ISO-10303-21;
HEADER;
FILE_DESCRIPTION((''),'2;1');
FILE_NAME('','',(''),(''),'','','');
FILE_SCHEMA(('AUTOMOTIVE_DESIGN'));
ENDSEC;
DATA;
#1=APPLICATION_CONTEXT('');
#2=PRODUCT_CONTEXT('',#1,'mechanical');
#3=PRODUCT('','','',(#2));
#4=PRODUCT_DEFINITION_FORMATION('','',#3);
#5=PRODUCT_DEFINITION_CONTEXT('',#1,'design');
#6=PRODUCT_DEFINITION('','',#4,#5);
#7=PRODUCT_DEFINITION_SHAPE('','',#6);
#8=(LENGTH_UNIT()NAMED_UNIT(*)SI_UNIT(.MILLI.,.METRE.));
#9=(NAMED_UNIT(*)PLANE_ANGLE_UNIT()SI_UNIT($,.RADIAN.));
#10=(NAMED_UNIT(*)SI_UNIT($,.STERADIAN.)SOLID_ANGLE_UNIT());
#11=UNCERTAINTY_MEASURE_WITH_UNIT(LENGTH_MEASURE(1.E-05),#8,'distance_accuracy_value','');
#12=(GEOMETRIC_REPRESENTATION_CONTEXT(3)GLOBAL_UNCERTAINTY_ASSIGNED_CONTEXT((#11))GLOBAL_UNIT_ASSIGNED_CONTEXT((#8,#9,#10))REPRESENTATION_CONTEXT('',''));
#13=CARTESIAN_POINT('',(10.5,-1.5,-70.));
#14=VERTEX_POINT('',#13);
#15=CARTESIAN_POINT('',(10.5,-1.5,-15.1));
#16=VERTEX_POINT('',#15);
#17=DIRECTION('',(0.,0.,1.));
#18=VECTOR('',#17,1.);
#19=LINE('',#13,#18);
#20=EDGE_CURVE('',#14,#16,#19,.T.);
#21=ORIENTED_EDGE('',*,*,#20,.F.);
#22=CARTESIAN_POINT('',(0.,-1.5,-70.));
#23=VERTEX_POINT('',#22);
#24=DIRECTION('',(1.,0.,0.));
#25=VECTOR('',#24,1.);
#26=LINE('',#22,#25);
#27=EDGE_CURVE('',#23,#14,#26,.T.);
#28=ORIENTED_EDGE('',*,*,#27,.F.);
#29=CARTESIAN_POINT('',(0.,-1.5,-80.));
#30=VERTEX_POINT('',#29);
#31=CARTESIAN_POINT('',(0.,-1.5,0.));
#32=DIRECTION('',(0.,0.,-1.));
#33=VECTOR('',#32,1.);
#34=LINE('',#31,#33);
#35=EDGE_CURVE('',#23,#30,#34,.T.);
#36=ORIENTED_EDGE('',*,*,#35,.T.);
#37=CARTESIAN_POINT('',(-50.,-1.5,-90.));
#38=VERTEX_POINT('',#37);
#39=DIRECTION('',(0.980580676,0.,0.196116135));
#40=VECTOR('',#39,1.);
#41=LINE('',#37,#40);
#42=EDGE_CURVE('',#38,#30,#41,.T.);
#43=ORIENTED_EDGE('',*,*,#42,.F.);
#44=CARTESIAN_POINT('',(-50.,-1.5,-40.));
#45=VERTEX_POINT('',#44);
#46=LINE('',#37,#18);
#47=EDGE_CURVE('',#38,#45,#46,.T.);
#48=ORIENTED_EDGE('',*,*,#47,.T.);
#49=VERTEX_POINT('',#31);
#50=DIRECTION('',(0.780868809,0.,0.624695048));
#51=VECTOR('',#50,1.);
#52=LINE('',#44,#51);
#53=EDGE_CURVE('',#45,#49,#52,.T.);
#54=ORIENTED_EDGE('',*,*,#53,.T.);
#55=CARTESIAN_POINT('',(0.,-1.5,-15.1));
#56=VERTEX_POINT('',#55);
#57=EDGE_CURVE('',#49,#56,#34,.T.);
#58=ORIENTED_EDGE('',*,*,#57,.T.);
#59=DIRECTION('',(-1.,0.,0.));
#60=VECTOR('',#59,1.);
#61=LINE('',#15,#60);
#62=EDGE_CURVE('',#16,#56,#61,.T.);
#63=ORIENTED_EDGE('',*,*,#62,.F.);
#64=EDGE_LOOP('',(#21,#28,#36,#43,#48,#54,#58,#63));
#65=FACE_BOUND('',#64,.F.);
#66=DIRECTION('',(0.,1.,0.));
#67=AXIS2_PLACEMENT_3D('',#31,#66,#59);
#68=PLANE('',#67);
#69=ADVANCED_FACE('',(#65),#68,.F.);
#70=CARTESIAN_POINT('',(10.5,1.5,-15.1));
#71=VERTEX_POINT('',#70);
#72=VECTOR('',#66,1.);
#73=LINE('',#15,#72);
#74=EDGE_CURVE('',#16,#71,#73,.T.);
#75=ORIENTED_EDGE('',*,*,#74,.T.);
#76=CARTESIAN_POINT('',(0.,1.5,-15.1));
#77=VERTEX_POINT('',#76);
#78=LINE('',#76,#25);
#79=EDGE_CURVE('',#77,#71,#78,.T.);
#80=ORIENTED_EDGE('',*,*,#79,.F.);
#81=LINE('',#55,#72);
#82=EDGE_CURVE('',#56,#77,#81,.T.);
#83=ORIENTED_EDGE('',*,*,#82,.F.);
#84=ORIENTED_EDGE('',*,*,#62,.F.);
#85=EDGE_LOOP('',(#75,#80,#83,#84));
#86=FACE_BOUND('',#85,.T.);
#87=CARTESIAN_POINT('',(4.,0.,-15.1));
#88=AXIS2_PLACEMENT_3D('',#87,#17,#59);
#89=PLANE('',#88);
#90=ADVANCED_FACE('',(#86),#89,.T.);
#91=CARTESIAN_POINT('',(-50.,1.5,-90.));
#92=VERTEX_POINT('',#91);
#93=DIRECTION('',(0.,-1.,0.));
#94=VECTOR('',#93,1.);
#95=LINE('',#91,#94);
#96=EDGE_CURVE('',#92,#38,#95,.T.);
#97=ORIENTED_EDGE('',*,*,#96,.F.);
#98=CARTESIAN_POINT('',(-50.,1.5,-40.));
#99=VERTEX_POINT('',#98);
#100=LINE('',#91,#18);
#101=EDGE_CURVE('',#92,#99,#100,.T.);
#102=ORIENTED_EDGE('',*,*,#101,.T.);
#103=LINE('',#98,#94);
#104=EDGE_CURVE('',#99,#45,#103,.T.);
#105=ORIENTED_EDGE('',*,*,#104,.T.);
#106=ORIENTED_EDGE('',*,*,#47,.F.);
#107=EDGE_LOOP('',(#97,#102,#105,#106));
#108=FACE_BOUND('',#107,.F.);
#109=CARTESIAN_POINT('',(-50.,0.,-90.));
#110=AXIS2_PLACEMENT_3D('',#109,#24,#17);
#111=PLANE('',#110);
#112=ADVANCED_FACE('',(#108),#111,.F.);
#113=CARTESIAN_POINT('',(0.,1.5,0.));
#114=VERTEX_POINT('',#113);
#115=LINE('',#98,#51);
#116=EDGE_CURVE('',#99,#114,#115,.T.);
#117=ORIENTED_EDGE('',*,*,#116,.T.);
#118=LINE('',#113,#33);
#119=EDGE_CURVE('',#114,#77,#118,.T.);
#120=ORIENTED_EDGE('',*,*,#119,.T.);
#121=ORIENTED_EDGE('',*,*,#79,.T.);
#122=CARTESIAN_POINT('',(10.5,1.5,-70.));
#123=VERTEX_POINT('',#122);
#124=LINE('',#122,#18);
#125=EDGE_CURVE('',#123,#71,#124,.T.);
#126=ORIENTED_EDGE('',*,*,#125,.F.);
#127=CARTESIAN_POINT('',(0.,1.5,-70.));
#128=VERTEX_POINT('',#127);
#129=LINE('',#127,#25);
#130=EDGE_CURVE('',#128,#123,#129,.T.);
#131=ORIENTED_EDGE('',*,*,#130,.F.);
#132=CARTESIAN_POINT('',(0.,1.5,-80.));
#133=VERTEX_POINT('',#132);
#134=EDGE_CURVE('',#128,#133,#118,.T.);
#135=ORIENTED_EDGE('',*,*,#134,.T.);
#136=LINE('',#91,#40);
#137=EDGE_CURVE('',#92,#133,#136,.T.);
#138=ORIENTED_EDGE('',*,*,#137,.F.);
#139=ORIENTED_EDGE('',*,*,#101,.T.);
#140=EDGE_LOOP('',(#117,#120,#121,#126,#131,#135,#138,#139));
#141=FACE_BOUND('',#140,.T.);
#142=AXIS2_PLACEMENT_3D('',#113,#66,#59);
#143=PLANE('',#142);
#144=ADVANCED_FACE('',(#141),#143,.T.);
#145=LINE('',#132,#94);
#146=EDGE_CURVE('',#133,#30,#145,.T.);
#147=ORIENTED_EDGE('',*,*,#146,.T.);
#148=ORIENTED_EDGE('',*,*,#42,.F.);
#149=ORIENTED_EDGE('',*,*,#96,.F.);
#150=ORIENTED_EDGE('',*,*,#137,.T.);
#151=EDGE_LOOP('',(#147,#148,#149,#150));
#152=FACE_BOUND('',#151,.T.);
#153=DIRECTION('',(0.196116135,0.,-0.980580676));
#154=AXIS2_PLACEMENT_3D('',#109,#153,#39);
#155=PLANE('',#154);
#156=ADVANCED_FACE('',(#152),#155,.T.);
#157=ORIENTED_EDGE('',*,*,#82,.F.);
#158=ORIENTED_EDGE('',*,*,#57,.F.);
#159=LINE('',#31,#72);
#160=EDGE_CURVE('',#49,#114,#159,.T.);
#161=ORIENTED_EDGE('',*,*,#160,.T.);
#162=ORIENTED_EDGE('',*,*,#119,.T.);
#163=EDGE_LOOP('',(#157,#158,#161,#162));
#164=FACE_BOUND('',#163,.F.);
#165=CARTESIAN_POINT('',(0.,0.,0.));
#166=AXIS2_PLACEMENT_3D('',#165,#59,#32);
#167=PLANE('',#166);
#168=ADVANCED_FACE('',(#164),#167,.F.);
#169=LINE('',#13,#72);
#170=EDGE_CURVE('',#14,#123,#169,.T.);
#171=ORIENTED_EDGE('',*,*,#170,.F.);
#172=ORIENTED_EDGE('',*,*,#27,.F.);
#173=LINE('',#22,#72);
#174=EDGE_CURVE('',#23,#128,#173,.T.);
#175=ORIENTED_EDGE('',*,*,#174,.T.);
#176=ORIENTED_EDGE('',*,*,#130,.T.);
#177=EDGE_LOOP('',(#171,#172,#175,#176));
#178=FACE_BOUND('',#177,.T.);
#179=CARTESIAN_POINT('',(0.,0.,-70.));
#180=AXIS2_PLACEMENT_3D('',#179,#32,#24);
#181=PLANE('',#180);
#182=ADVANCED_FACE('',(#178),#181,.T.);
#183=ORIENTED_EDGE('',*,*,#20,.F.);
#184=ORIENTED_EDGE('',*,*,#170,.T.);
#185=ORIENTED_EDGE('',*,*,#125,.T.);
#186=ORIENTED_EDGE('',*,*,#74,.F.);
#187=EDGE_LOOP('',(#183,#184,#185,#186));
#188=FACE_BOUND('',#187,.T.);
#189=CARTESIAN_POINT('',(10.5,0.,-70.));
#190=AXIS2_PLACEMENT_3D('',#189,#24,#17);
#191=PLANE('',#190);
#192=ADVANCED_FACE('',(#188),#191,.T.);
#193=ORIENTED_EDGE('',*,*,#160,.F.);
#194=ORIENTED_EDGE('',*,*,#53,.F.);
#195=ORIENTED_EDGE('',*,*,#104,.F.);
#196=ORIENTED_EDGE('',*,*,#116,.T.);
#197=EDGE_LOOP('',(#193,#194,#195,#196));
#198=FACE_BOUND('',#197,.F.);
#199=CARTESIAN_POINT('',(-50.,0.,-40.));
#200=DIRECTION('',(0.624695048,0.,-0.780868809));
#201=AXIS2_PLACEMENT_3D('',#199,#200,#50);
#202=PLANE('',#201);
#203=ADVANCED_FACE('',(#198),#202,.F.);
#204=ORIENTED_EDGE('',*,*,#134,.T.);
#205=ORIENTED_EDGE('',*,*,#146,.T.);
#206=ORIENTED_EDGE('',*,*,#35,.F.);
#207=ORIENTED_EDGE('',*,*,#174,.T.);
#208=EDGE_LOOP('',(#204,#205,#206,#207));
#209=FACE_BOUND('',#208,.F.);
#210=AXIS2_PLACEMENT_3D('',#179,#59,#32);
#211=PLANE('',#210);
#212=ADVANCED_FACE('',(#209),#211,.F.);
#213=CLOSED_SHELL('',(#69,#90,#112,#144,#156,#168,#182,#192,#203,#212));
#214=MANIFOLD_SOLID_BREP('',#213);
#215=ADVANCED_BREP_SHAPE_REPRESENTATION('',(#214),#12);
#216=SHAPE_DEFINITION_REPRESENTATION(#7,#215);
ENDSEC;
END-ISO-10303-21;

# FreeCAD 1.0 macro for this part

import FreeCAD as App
import Part
import Sketcher

V = App.Vector


def add_polygon(sketch, points):
    """Adds a closed chain of lines whose ends are joined by coincident constraints."""
    first, n = sketch.GeometryCount, len(points)
    for a, b in zip(points, points[1:] + points[:1]):
        sketch.addGeometry(Part.LineSegment(App.Vector(*a, 0), App.Vector(*b, 0)), False)
    for i in range(n):
        sketch.addConstraint(Sketcher.Constraint("Coincident", first + i, 2, first + (i + 1) % n, 1))

doc = App.newDocument("Part")
body = doc.addObject("PartDesign::Body", "Body")

# Sketch on XZ plane
sketch1 = body.newObject("Sketcher::SketchObject", "Sketch")
sketch1.AttachmentSupport = (doc.getObject("XZ_Plane"), [""])
sketch1.MapMode = "FlatFace"
add_polygon(sketch1, [(-50, -40), (0, 0), (0, -15), (10, -15), (10, -70), (0, -70), (0, -80), (-50, -90)])  # lines 0-7
sketch1.addConstraint([
    Sketcher.Constraint("Vertical", 1),
    Sketcher.Constraint("Horizontal", 2),
    Sketcher.Constraint("Vertical", 3),
    Sketcher.Constraint("Horizontal", 4),
    Sketcher.Constraint("Vertical", 5),
    Sketcher.Constraint("Vertical", 7),
    Sketcher.Constraint("Coincident", 0, 2, -1, 1),
    Sketcher.Constraint("PointOnObject", 4, 2, -2),
    Sketcher.Constraint("DistanceY", 5, 2, 5, 1, 10.0),
    Sketcher.Constraint("DistanceY", 7, 1, 7, 2, 50.0),
    Sketcher.Constraint("DistanceY", 3, 2, 3, 1, 54.9),
    Sketcher.Constraint("DistanceY", 5, 2, -1, 1, 80.0),
    Sketcher.Constraint("DistanceX", 6, 2, -1, 1, 50.0),
    Sketcher.Constraint("DistanceY", 6, 2, 5, 2, 10.0),
    Sketcher.Constraint("DistanceX", 2, 1, 2, 2, 10.5),
])
pad1 = body.newObject("PartDesign::Pad", "Pad")
pad1.Profile = sketch1
pad1.Length = 3
pad1.Midplane = True

doc.recompute()
